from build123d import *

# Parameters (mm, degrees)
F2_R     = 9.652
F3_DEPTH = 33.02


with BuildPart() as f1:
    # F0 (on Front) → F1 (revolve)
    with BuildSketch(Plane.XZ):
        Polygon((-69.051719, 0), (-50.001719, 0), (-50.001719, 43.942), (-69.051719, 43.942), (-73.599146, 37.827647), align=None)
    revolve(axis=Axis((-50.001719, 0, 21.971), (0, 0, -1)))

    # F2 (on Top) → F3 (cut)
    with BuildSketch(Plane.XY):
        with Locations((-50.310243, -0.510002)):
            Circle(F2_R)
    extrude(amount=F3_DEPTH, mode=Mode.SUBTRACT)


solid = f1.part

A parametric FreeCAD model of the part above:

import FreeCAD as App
import Part
import Sketcher
from FreeCAD import Vector
Q = App.Units.Quantity

doc = App.newDocument("Part")
body = doc.addObject("PartDesign::Body", "Body")

# Sketch on XZ plane
sketch1 = doc.addObject("Sketcher::SketchObject", "Sketch")
body.addObject(sketch1)
sketch1.AttachmentSupport = (doc.XZ_Plane, [""])
sketch1.MapMode = "FlatFace"
sketch1.addGeometry([
    Part.LineSegment(Vector(-69, 0, 0), Vector(-50, 0, 0)),  # 0
    Part.LineSegment(Vector(-50, 0, 0), Vector(-50, 44, 0)),  # 1
    Part.LineSegment(Vector(-50, 44, 0), Vector(-69, 44, 0)),  # 2
    Part.LineSegment(Vector(-69, 44, 0), Vector(-74, 38, 0)),  # 3
    Part.LineSegment(Vector(-74, 38, 0), Vector(-69, 0, 0)),  # 4
], False)
sketch1.addGeometry(Part.LineSegment(Vector(-50, 44, 0), Vector(-50, 0, 0)), True)  # axis
sketch1.addConstraint([
    Sketcher.Constraint("Coincident", 0, 2, 1, 1),
    Sketcher.Constraint("Coincident", 1, 2, 2, 1),
    Sketcher.Constraint("Coincident", 2, 2, 3, 1),
    Sketcher.Constraint("Coincident", 3, 2, 4, 1),
    Sketcher.Constraint("Coincident", 4, 2, 0, 1),
    Sketcher.Constraint("Horizontal", 0),
    Sketcher.Constraint("Vertical", 1),
    Sketcher.Constraint("Horizontal", 2),
    Sketcher.Constraint("Vertical", 5),
    Sketcher.Constraint("Coincident", 5, 1, 1, 2),
    Sketcher.Constraint("PointOnObject", 0, 2, -1),
    Sketcher.Constraint("PointOnObject", 5, 2, -1),
    Sketcher.Constraint("Vertical", 2, 2, 4, 2),
    Sketcher.Constraint("Distance", 3, Q("0.3 in")),
    Sketcher.Constraint("Distance", 4, Q("1.5 in")),
    Sketcher.Constraint("DistanceX", 0, 1, 0, 2, Q("0.75 in")),
    Sketcher.Constraint("DistanceY", 1, 1, 1, 2, Q("1.73 in")),
    Sketcher.Constraint("DistanceX", 0, 2, -1, 1, 50.001719),
])
revolution = doc.addObject("PartDesign::Revolution", "Revolution")
body.addObject(revolution)
revolution.Profile = sketch1
revolution.ReferenceAxis = (sketch1, ["Axis0"])
revolution.Angle = 360

# Sketch on XY plane
sketch2 = doc.addObject("Sketcher::SketchObject", "Sketch001")
body.addObject(sketch2)
sketch2.AttachmentSupport = (doc.XY_Plane, [""])
sketch2.MapMode = "FlatFace"
sketch2.addGeometry(Part.Circle(Vector(-50, -1, 0), Vector(0, 0, 1), 10), False)
sketch2.addConstraint([
    Sketcher.Constraint("Diameter", 0, Q("0.76 in")),
    Sketcher.Constraint("DistanceY", 0, 3, -1, 1, 0.510002),
    Sketcher.Constraint("DistanceX", 0, 3, -1, 1, 50.310243),
])
pocket1 = doc.addObject("PartDesign::Pocket", "Pocket")
body.addObject(pocket1)
pocket1.Profile = sketch2
pocket1.Length = Q("1.3 in")
pocket1.Reversed = True

doc.recompute()
